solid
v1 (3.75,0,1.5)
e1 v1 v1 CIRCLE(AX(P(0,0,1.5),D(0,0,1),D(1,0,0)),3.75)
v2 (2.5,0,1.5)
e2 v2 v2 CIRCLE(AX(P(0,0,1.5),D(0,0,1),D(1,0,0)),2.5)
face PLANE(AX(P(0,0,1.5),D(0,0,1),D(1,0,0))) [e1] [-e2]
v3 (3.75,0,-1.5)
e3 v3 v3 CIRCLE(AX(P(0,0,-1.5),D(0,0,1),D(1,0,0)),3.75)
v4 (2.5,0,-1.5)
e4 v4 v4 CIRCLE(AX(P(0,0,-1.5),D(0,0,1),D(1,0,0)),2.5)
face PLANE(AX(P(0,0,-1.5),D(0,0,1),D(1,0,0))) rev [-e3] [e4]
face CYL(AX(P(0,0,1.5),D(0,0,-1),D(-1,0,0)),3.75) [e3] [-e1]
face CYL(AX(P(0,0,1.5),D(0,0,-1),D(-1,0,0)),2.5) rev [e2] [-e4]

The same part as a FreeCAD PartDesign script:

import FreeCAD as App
import Part
import Sketcher
from FreeCAD import Vector
Q = App.Units.Quantity

doc = App.newDocument("Part")
body = doc.addObject("PartDesign::Body", "Body")

# Sketch on XY plane
sketch1 = doc.addObject("Sketcher::SketchObject", "Sketch")
body.addObject(sketch1)
sketch1.AttachmentSupport = (doc.XY_Plane, [""])
sketch1.MapMode = "FlatFace"
sketch1.addGeometry([
    Part.Circle(Vector(0, 0, 0), Vector(0, 0, 1), 3.8),
    Part.Circle(Vector(0, 0, 0), Vector(0, 0, 1), 2.5),
], False)
sketch1.addConstraint([
    Sketcher.Constraint("Coincident", 0, 3, -1, 1),
    Sketcher.Constraint("Coincident", 1, 3, -1, 1),
    Sketcher.Constraint("Diameter", 1, Q("5 mm")),
    Sketcher.Constraint("Diameter", 0, Q("7.5 mm")),
])
pad1 = doc.addObject("PartDesign::Pad", "Pad")
body.addObject(pad1)
pad1.Profile = sketch1
pad1.Length = 3
pad1.Midplane = True

doc.recompute()
